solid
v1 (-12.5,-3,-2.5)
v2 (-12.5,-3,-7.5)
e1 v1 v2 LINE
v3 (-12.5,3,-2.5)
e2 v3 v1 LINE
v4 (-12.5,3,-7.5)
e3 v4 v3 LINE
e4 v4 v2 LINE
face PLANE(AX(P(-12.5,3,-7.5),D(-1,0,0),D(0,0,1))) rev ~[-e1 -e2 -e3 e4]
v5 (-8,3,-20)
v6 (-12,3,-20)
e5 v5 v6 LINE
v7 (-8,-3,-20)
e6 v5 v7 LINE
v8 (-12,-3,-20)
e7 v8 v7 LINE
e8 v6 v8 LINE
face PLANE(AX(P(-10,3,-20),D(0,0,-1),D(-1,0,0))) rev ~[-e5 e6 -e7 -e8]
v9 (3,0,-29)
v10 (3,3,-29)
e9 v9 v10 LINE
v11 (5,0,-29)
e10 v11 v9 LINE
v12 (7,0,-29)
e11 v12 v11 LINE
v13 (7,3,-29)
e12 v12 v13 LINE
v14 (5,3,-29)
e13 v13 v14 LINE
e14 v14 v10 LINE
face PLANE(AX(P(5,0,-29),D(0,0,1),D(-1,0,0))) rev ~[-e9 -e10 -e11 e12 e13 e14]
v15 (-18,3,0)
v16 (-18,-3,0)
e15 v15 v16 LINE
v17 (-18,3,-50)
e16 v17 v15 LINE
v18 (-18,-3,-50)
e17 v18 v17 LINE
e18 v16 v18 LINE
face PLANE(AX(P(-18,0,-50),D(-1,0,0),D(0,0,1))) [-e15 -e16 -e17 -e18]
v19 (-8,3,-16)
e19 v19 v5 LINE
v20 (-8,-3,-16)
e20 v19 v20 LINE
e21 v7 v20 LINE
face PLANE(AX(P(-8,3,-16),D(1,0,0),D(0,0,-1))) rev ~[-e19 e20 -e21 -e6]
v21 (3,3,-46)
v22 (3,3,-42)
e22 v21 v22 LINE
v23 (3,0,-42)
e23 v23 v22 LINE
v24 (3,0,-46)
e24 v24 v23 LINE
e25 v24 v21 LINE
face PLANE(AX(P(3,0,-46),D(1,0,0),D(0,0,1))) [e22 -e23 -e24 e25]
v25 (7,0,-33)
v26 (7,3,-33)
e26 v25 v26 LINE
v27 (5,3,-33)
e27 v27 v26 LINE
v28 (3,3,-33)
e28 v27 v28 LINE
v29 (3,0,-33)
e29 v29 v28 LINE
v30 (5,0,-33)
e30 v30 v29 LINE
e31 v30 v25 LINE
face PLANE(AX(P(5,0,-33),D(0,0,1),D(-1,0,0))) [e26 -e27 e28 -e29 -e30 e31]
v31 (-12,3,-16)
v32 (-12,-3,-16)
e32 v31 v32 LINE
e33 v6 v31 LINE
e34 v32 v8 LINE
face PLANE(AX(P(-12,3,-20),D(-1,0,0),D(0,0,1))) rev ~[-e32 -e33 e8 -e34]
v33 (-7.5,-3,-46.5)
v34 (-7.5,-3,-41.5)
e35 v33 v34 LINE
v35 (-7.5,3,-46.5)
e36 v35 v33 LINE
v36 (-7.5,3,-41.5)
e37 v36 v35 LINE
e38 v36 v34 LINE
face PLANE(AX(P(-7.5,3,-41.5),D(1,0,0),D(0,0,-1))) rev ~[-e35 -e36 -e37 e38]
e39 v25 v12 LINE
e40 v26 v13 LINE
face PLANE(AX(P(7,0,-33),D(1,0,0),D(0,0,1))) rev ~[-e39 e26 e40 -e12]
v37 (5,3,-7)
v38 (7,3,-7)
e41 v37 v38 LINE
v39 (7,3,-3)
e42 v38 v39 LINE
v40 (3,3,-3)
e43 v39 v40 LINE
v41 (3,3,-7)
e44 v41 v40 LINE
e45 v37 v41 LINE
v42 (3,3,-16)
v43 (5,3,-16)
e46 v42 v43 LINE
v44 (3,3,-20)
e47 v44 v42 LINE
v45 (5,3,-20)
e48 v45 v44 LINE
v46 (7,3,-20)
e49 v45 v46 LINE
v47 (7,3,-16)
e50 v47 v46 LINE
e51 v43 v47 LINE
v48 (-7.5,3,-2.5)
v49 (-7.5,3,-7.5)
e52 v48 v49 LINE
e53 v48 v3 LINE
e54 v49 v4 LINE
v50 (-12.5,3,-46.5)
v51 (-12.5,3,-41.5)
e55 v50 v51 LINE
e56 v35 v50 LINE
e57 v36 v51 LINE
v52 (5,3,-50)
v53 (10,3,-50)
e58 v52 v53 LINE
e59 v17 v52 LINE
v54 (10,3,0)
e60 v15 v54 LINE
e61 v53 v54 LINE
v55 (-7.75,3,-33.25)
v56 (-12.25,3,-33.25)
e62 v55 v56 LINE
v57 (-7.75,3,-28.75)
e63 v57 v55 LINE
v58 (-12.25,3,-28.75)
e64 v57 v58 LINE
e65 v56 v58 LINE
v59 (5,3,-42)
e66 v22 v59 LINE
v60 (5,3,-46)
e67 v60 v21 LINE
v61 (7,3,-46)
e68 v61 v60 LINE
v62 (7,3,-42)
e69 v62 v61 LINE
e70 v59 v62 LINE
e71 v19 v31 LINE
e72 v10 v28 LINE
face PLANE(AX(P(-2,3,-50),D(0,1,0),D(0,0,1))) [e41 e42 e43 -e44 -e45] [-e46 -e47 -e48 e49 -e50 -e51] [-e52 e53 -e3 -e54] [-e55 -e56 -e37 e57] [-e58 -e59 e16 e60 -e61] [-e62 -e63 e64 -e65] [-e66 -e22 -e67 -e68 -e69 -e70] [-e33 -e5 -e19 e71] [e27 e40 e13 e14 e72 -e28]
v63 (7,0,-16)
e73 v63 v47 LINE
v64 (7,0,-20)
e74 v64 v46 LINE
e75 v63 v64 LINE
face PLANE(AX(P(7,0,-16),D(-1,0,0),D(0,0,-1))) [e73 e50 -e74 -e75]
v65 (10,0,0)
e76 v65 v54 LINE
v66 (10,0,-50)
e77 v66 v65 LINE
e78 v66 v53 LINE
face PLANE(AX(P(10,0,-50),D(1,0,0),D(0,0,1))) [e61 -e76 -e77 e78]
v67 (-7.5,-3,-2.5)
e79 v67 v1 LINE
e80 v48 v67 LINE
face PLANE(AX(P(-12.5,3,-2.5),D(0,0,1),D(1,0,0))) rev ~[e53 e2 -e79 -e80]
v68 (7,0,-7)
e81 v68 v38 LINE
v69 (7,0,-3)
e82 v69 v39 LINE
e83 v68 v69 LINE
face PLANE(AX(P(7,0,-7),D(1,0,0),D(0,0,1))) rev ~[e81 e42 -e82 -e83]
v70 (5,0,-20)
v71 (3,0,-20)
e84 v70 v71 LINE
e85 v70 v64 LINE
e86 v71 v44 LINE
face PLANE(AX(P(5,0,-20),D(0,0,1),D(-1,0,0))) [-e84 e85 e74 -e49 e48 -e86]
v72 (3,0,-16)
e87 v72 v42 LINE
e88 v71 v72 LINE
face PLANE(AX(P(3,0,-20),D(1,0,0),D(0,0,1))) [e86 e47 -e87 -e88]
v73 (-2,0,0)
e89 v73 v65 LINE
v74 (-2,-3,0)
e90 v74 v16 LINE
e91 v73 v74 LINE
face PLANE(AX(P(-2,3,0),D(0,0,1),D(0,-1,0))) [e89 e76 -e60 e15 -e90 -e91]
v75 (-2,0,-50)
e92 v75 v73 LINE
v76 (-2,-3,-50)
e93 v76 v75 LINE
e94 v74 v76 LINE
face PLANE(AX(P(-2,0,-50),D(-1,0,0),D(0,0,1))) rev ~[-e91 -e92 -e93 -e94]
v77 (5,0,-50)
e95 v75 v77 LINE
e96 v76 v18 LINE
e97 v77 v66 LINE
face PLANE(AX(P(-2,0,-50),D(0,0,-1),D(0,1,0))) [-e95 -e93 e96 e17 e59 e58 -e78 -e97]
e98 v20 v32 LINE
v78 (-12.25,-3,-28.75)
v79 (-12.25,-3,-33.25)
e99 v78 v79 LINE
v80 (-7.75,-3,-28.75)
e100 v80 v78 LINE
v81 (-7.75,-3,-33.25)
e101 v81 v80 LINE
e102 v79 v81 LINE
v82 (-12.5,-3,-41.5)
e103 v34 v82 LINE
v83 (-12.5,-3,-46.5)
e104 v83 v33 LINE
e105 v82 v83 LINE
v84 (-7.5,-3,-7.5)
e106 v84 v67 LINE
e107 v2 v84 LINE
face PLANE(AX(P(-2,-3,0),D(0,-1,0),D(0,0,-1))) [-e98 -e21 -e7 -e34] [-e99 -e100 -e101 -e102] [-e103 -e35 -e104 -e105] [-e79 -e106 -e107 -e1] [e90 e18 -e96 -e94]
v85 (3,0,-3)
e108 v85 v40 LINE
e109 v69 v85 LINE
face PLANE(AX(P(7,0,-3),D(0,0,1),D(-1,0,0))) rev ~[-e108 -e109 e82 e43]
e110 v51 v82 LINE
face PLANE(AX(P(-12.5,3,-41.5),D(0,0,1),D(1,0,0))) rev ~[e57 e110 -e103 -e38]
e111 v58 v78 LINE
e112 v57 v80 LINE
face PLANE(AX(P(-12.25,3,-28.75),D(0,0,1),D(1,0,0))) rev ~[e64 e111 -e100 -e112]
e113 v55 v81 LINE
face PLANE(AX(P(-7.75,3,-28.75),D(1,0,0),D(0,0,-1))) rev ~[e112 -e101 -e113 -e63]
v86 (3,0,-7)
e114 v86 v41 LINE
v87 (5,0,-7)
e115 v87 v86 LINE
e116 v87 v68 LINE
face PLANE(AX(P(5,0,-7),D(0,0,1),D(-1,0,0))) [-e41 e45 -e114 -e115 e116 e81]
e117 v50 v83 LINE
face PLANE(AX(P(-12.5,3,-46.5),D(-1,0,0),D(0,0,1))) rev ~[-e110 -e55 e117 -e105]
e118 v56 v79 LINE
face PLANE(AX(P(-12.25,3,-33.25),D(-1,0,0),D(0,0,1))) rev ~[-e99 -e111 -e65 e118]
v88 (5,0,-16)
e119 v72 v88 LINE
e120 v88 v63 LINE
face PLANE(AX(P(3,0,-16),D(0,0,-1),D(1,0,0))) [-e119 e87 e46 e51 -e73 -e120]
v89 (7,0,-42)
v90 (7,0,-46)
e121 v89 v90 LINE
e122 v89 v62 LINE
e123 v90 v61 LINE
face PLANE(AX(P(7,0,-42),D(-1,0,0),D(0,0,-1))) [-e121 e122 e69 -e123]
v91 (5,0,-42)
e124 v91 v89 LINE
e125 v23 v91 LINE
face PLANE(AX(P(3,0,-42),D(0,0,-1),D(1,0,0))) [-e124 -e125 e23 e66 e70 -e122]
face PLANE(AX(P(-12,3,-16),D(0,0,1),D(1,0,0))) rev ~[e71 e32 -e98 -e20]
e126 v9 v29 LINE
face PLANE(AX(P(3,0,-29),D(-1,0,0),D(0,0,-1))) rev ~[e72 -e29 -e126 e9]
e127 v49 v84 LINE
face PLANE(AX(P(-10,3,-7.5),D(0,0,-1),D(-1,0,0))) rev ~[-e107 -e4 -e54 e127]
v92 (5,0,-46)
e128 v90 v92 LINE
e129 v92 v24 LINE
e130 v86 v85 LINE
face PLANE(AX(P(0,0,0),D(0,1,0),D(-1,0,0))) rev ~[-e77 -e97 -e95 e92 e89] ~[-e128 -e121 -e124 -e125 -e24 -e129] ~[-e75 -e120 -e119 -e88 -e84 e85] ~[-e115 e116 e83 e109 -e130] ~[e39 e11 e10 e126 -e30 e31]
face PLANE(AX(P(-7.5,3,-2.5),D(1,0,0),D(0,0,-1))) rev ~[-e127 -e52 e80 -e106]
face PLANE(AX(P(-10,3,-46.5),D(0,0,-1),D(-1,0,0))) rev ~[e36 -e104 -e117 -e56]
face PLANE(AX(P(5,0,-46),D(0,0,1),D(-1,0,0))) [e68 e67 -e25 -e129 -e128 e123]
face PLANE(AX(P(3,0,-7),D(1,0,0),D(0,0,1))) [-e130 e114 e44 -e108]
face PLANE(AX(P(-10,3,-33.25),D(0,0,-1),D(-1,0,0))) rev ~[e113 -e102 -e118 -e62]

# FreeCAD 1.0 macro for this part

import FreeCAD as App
import Part
import Sketcher
Q = App.Units.Quantity

doc = App.newDocument("Part")
params = doc.addObject("Spreadsheet::Sheet", "Params")
for row, (alias, value) in enumerate([
    ("sketch1_width", "2 mm"),
    ("sketch1_height", "50 mm"),
    ("pad1_length", "3 mm"),
    ("sketch2_width", "6 mm"),
    ("sketch2_height", "50 mm"),
    ("pad2_length", "16 mm"),
    ("sketch3_width", "5 mm"),
    ("sketch3_width2", "4 mm"),
    ("sketch3_width3", "4.5 mm"),
    ("pocket1_length", "16 mm"),
], start=1):
    params.set(f"A{row}", alias)
    params.set(f"B{row}", "=" + value)
    params.setAlias(f"B{row}", alias)

body = doc.addObject("PartDesign::Body", "Body")

# Sketch on XZ plane
sketch1 = body.newObject("Sketcher::SketchObject", "Sketch")
sketch1.AttachmentSupport = (doc.getObject("XZ_Plane"), [""])
sketch1.MapMode = "FlatFace"
sketch1.addGeometry([
    Part.LineSegment(App.Vector(-2, 0, 0), App.Vector(10, 0, 0)),  # 0
    Part.LineSegment(App.Vector(10, 0, 0), App.Vector(10, -50, 0)),  # 1
    Part.LineSegment(App.Vector(10, -50, 0), App.Vector(5, -50, 0)),  # 2
    Part.LineSegment(App.Vector(5, -50, 0), App.Vector(-2, -50, 0)),  # 3
    Part.LineSegment(App.Vector(-2, -50, 0), App.Vector(-2, 0, 0)),  # 4
    Part.LineSegment(App.Vector(3, -46, 0), App.Vector(5, -46, 0)),  # 5
    Part.LineSegment(App.Vector(5, -46, 0), App.Vector(7, -46, 0)),  # 6
    Part.LineSegment(App.Vector(7, -46, 0), App.Vector(7, -42, 0)),  # 7
    Part.LineSegment(App.Vector(7, -42, 0), App.Vector(5, -42, 0)),  # 8
    Part.LineSegment(App.Vector(5, -42, 0), App.Vector(3, -42, 0)),  # 9
    Part.LineSegment(App.Vector(3, -42, 0), App.Vector(3, -46, 0)),  # 10
    Part.LineSegment(App.Vector(3, -33, 0), App.Vector(5, -33, 0)),  # 11
    Part.LineSegment(App.Vector(5, -33, 0), App.Vector(7, -33, 0)),  # 12
    Part.LineSegment(App.Vector(7, -33, 0), App.Vector(7, -29, 0)),  # 13
    Part.LineSegment(App.Vector(7, -29, 0), App.Vector(5, -29, 0)),  # 14
    Part.LineSegment(App.Vector(5, -29, 0), App.Vector(3, -29, 0)),  # 15
    Part.LineSegment(App.Vector(3, -29, 0), App.Vector(3, -33, 0)),  # 16
    Part.LineSegment(App.Vector(3, -20, 0), App.Vector(5, -20, 0)),  # 17
    Part.LineSegment(App.Vector(5, -20, 0), App.Vector(7, -20, 0)),  # 18
    Part.LineSegment(App.Vector(7, -20, 0), App.Vector(7, -16, 0)),  # 19
    Part.LineSegment(App.Vector(7, -16, 0), App.Vector(5, -16, 0)),  # 20
    Part.LineSegment(App.Vector(5, -16, 0), App.Vector(3, -16, 0)),  # 21
    Part.LineSegment(App.Vector(3, -16, 0), App.Vector(3, -20, 0)),  # 22
    Part.LineSegment(App.Vector(3, -7, 0), App.Vector(5, -7, 0)),  # 23
    Part.LineSegment(App.Vector(5, -7, 0), App.Vector(7, -7, 0)),  # 24
    Part.LineSegment(App.Vector(7, -7, 0), App.Vector(7, -3, 0)),  # 25
    Part.LineSegment(App.Vector(7, -3, 0), App.Vector(3, -3, 0)),  # 26
    Part.LineSegment(App.Vector(3, -3, 0), App.Vector(3, -7, 0)),  # 27
], False)
sketch1.addConstraint([
    Sketcher.Constraint("Coincident", 0, 2, 1, 1),
    Sketcher.Constraint("Coincident", 1, 2, 2, 1),
    Sketcher.Constraint("Coincident", 2, 2, 3, 1),
    Sketcher.Constraint("Coincident", 3, 2, 4, 1),
    Sketcher.Constraint("Coincident", 4, 2, 0, 1),
    Sketcher.Constraint("Coincident", 5, 2, 6, 1),
    Sketcher.Constraint("Coincident", 6, 2, 7, 1),
    Sketcher.Constraint("Coincident", 7, 2, 8, 1),
    Sketcher.Constraint("Coincident", 8, 2, 9, 1),
    Sketcher.Constraint("Coincident", 9, 2, 10, 1),
    Sketcher.Constraint("Coincident", 10, 2, 5, 1),
    Sketcher.Constraint("Coincident", 11, 2, 12, 1),
    Sketcher.Constraint("Coincident", 12, 2, 13, 1),
    Sketcher.Constraint("Coincident", 13, 2, 14, 1),
    Sketcher.Constraint("Coincident", 14, 2, 15, 1),
    Sketcher.Constraint("Coincident", 15, 2, 16, 1),
    Sketcher.Constraint("Coincident", 16, 2, 11, 1),
    Sketcher.Constraint("Coincident", 17, 2, 18, 1),
    Sketcher.Constraint("Coincident", 18, 2, 19, 1),
    Sketcher.Constraint("Coincident", 19, 2, 20, 1),
    Sketcher.Constraint("Coincident", 20, 2, 21, 1),
    Sketcher.Constraint("Coincident", 21, 2, 22, 1),
    Sketcher.Constraint("Coincident", 22, 2, 17, 1),
    Sketcher.Constraint("Coincident", 23, 2, 24, 1),
    Sketcher.Constraint("Coincident", 24, 2, 25, 1),
    Sketcher.Constraint("Coincident", 25, 2, 26, 1),
    Sketcher.Constraint("Coincident", 26, 2, 27, 1),
    Sketcher.Constraint("Coincident", 27, 2, 23, 1),
    Sketcher.Constraint("Horizontal", 0),
    Sketcher.Constraint("Vertical", 1),
    Sketcher.Constraint("Horizontal", 2),
    Sketcher.Constraint("Horizontal", 3),
    Sketcher.Constraint("Vertical", 4),
    Sketcher.Constraint("Horizontal", 5),
    Sketcher.Constraint("Horizontal", 6),
    Sketcher.Constraint("Vertical", 7),
    Sketcher.Constraint("Horizontal", 8),
    Sketcher.Constraint("Horizontal", 9),
    Sketcher.Constraint("Vertical", 10),
    Sketcher.Constraint("Horizontal", 11),
    Sketcher.Constraint("Horizontal", 12),
    Sketcher.Constraint("Vertical", 13),
    Sketcher.Constraint("Horizontal", 14),
    Sketcher.Constraint("Horizontal", 15),
    Sketcher.Constraint("Vertical", 16),
    Sketcher.Constraint("Horizontal", 17),
    Sketcher.Constraint("Horizontal", 18),
    Sketcher.Constraint("Vertical", 19),
    Sketcher.Constraint("Horizontal", 20),
    Sketcher.Constraint("Horizontal", 21),
    Sketcher.Constraint("Vertical", 22),
    Sketcher.Constraint("Horizontal", 23),
    Sketcher.Constraint("Horizontal", 24),
    Sketcher.Constraint("Vertical", 25),
    Sketcher.Constraint("Horizontal", 26),
    Sketcher.Constraint("Vertical", 27),
    Sketcher.Constraint("PointOnObject", 0, 2, -1),
    Sketcher.Constraint("Vertical", 2, 2, 5, 2),
    Sketcher.Constraint("Vertical", 5, 2, 8, 2),
    Sketcher.Constraint("Vertical", 8, 2, 11, 2),
    Sketcher.Constraint("Vertical", 7, 2, 12, 2),
    Sketcher.Constraint("Vertical", 11, 2, 14, 2),
    Sketcher.Constraint("Vertical", 10, 2, 15, 2),
    Sketcher.Constraint("Vertical", 14, 2, 17, 2),
    Sketcher.Constraint("Vertical", 13, 2, 18, 2),
    Sketcher.Constraint("Vertical", 17, 2, 20, 2),
    Sketcher.Constraint("Vertical", 16, 2, 21, 2),
    Sketcher.Constraint("Vertical", 20, 2, 23, 2),
    Sketcher.Constraint("Vertical", 19, 2, 24, 2),
    Sketcher.Constraint("Vertical", 22, 2, 26, 2),
    Sketcher.Constraint("Equal", 5, 6),
    Sketcher.Constraint("Equal", 26, 7),
    Sketcher.Constraint("Equal", 10, 13),
    Sketcher.Constraint("Equal", 16, 19),
    Sketcher.Constraint("Equal", 22, 25),
    Sketcher.Constraint("DistanceX", 5, 1, 5, 2, Q("2 mm")),
    Sketcher.Constraint("DistanceY", 1, 2, 1, 1, Q("50 mm")),
    Sketcher.Constraint("DistanceX", -1, 1, 0, 2, Q("10 mm")),
    Sketcher.Constraint("DistanceX", 3, 2, -1, 1, Q("2 mm")),
    Sketcher.Constraint("DistanceY", 2, 2, 5, 2, Q("4 mm")),
    Sketcher.Constraint("DistanceX", 3, 2, 6, 2, Q("9 mm")),
    Sketcher.Constraint("DistanceY", 8, 2, 11, 2, Q("9 mm")),
    Sketcher.Constraint("DistanceY", 14, 2, 17, 2, Q("9 mm")),
    Sketcher.Constraint("DistanceY", 20, 2, 23, 2, Q("9 mm")),
])
sketch1.setExpression("Constraints[75]", "Params.sketch1_width")
sketch1.setExpression("Constraints[76]", "Params.sketch1_height")
pad1 = body.newObject("PartDesign::Pad", "Pad")
pad1.Profile = sketch1
pad1.setExpression("Length", "Params.pad1_length")
pad1.Reversed = True

# Sketch on YZ plane
sketch2 = body.newObject("Sketcher::SketchObject", "Sketch001")
sketch2.AttachmentSupport = (doc.getObject("YZ_Plane"), [""])
sketch2.MapMode = "FlatFace"
sketch2.AttachmentOffset = App.Placement(App.Vector(0, 0, -2), App.Rotation())
sketch2.addGeometry([
    Part.LineSegment(App.Vector(3, -50, 0), App.Vector(-3, -50, 0)),
    Part.LineSegment(App.Vector(-3, -50, 0), App.Vector(-3, 0, 0)),
    Part.LineSegment(App.Vector(-3, 0, 0), App.Vector(3, 0, 0)),
    Part.LineSegment(App.Vector(3, 0, 0), App.Vector(3, -50, 0)),
], False)
sketch2.addConstraint([
    Sketcher.Constraint("Coincident", 0, 2, 1, 1),
    Sketcher.Constraint("Coincident", 1, 2, 2, 1),
    Sketcher.Constraint("Coincident", 2, 2, 3, 1),
    Sketcher.Constraint("Coincident", 3, 2, 0, 1),
    Sketcher.Constraint("Horizontal", 0),
    Sketcher.Constraint("Vertical", 1),
    Sketcher.Constraint("Horizontal", 2),
    Sketcher.Constraint("Vertical", 3),
    Sketcher.Constraint("Symmetric", 1, 2, 2, 2, -1, 1),
    Sketcher.Constraint("DistanceX", 0, 2, 0, 1, Q("6 mm")),
    Sketcher.Constraint("DistanceY", 1, 1, 1, 2, Q("50 mm")),
])
sketch2.setExpression("Constraints[9]", "Params.sketch2_width")
sketch2.setExpression("Constraints[10]", "Params.sketch2_height")
pad2 = body.newObject("PartDesign::Pad", "Pad001")
pad2.Profile = sketch2
pad2.setExpression("Length", "Params.pad2_length")
pad2.Reversed = True

# Sketch on XZ plane
sketch3 = body.newObject("Sketcher::SketchObject", "Sketch002")
sketch3.AttachmentSupport = (doc.getObject("XZ_Plane"), [""])
sketch3.MapMode = "FlatFace"
sketch3.AttachmentOffset = App.Placement(App.Vector(0, 0, -3), App.Rotation())
sketch3.addGeometry([
    Part.LineSegment(App.Vector(-12.5, -2.5, 0), App.Vector(-7.5, -2.5, 0)),  # 0
    Part.LineSegment(App.Vector(-7.5, -2.5, 0), App.Vector(-7.5, -7.5, 0)),  # 1
    Part.LineSegment(App.Vector(-7.5, -7.5, 0), App.Vector(-12.5, -7.5, 0)),  # 2
    Part.LineSegment(App.Vector(-12.5, -7.5, 0), App.Vector(-12.5, -2.5, 0)),  # 3
    Part.LineSegment(App.Vector(-12.5, -41.5, 0), App.Vector(-7.5, -41.5, 0)),  # 4
    Part.LineSegment(App.Vector(-7.5, -41.5, 0), App.Vector(-7.5, -46.5, 0)),  # 5
    Part.LineSegment(App.Vector(-7.5, -46.5, 0), App.Vector(-12.5, -46.5, 0)),  # 6
    Part.LineSegment(App.Vector(-12.5, -46.5, 0), App.Vector(-12.5, -41.5, 0)),  # 7
    Part.LineSegment(App.Vector(-12.2, -28.8, 0), App.Vector(-7.8, -28.8, 0)),  # 8
    Part.LineSegment(App.Vector(-7.8, -28.8, 0), App.Vector(-7.8, -33.2, 0)),  # 9
    Part.LineSegment(App.Vector(-7.8, -33.2, 0), App.Vector(-12.2, -33.2, 0)),  # 10
    Part.LineSegment(App.Vector(-12.2, -33.2, 0), App.Vector(-12.2, -28.8, 0)),  # 11
    Part.LineSegment(App.Vector(-12, -16, 0), App.Vector(-8, -16, 0)),  # 12
    Part.LineSegment(App.Vector(-8, -16, 0), App.Vector(-8, -20, 0)),  # 13
    Part.LineSegment(App.Vector(-8, -20, 0), App.Vector(-12, -20, 0)),  # 14
    Part.LineSegment(App.Vector(-12, -20, 0), App.Vector(-12, -16, 0)),  # 15
], False)
sketch3.addConstraint([
    Sketcher.Constraint("Coincident", 0, 2, 1, 1),
    Sketcher.Constraint("Coincident", 1, 2, 2, 1),
    Sketcher.Constraint("Coincident", 2, 2, 3, 1),
    Sketcher.Constraint("Coincident", 3, 2, 0, 1),
    Sketcher.Constraint("Coincident", 4, 2, 5, 1),
    Sketcher.Constraint("Coincident", 5, 2, 6, 1),
    Sketcher.Constraint("Coincident", 6, 2, 7, 1),
    Sketcher.Constraint("Coincident", 7, 2, 4, 1),
    Sketcher.Constraint("Coincident", 8, 2, 9, 1),
    Sketcher.Constraint("Coincident", 9, 2, 10, 1),
    Sketcher.Constraint("Coincident", 10, 2, 11, 1),
    Sketcher.Constraint("Coincident", 11, 2, 8, 1),
    Sketcher.Constraint("Coincident", 12, 2, 13, 1),
    Sketcher.Constraint("Coincident", 13, 2, 14, 1),
    Sketcher.Constraint("Coincident", 14, 2, 15, 1),
    Sketcher.Constraint("Coincident", 15, 2, 12, 1),
    Sketcher.Constraint("Horizontal", 0),
    Sketcher.Constraint("Vertical", 1),
    Sketcher.Constraint("Horizontal", 2),
    Sketcher.Constraint("Vertical", 3),
    Sketcher.Constraint("Horizontal", 4),
    Sketcher.Constraint("Vertical", 5),
    Sketcher.Constraint("Horizontal", 6),
    Sketcher.Constraint("Vertical", 7),
    Sketcher.Constraint("Horizontal", 8),
    Sketcher.Constraint("Vertical", 9),
    Sketcher.Constraint("Horizontal", 10),
    Sketcher.Constraint("Vertical", 11),
    Sketcher.Constraint("Horizontal", 12),
    Sketcher.Constraint("Vertical", 13),
    Sketcher.Constraint("Horizontal", 14),
    Sketcher.Constraint("Vertical", 15),
    Sketcher.Constraint("Vertical", 1, 2, 4, 2),
    Sketcher.Constraint("Vertical", 3, 2, 6, 2),
    Sketcher.Constraint("Equal", 6, 1),
    Sketcher.Constraint("Equal", 3, 5),
    Sketcher.Constraint("Equal", 10, 9),
    Sketcher.Constraint("Equal", 14, 13),
    Sketcher.Constraint("DistanceX", 0, 1, 0, 2, Q("5 mm")),
    Sketcher.Constraint("DistanceX", 12, 1, 12, 2, Q("4 mm")),
    Sketcher.Constraint("DistanceX", 8, 1, 8, 2, Q("4.5 mm")),
    Sketcher.Constraint("DistanceX", 2, 2, 12, 2, Q("4.5 mm")),
    Sketcher.Constraint("DistanceX", 12, 2, -1, 1, Q("8 mm")),
    Sketcher.Constraint("DistanceY", 12, 2, -1, 1, Q("16 mm")),
    Sketcher.Constraint("DistanceY", 4, 2, 1, 2, Q("34 mm")),
    Sketcher.Constraint("DistanceY", 0, 2, -1, 1, Q("2.5 mm")),
    Sketcher.Constraint("DistanceX", 8, 2, -1, 1, Q("7.75 mm")),
    Sketcher.Constraint("DistanceY", 8, 2, -1, 1, Q("28.75 mm")),
])
sketch3.setExpression("Constraints[38]", "Params.sketch3_width")
sketch3.setExpression("Constraints[39]", "Params.sketch3_width2")
sketch3.setExpression("Constraints[40]", "Params.sketch3_width3")
pocket1 = body.newObject("PartDesign::Pocket", "Pocket")
pocket1.Profile = sketch3
pocket1.setExpression("Length", "Params.pocket1_length")
pocket1.Reversed = True

doc.recompute()
